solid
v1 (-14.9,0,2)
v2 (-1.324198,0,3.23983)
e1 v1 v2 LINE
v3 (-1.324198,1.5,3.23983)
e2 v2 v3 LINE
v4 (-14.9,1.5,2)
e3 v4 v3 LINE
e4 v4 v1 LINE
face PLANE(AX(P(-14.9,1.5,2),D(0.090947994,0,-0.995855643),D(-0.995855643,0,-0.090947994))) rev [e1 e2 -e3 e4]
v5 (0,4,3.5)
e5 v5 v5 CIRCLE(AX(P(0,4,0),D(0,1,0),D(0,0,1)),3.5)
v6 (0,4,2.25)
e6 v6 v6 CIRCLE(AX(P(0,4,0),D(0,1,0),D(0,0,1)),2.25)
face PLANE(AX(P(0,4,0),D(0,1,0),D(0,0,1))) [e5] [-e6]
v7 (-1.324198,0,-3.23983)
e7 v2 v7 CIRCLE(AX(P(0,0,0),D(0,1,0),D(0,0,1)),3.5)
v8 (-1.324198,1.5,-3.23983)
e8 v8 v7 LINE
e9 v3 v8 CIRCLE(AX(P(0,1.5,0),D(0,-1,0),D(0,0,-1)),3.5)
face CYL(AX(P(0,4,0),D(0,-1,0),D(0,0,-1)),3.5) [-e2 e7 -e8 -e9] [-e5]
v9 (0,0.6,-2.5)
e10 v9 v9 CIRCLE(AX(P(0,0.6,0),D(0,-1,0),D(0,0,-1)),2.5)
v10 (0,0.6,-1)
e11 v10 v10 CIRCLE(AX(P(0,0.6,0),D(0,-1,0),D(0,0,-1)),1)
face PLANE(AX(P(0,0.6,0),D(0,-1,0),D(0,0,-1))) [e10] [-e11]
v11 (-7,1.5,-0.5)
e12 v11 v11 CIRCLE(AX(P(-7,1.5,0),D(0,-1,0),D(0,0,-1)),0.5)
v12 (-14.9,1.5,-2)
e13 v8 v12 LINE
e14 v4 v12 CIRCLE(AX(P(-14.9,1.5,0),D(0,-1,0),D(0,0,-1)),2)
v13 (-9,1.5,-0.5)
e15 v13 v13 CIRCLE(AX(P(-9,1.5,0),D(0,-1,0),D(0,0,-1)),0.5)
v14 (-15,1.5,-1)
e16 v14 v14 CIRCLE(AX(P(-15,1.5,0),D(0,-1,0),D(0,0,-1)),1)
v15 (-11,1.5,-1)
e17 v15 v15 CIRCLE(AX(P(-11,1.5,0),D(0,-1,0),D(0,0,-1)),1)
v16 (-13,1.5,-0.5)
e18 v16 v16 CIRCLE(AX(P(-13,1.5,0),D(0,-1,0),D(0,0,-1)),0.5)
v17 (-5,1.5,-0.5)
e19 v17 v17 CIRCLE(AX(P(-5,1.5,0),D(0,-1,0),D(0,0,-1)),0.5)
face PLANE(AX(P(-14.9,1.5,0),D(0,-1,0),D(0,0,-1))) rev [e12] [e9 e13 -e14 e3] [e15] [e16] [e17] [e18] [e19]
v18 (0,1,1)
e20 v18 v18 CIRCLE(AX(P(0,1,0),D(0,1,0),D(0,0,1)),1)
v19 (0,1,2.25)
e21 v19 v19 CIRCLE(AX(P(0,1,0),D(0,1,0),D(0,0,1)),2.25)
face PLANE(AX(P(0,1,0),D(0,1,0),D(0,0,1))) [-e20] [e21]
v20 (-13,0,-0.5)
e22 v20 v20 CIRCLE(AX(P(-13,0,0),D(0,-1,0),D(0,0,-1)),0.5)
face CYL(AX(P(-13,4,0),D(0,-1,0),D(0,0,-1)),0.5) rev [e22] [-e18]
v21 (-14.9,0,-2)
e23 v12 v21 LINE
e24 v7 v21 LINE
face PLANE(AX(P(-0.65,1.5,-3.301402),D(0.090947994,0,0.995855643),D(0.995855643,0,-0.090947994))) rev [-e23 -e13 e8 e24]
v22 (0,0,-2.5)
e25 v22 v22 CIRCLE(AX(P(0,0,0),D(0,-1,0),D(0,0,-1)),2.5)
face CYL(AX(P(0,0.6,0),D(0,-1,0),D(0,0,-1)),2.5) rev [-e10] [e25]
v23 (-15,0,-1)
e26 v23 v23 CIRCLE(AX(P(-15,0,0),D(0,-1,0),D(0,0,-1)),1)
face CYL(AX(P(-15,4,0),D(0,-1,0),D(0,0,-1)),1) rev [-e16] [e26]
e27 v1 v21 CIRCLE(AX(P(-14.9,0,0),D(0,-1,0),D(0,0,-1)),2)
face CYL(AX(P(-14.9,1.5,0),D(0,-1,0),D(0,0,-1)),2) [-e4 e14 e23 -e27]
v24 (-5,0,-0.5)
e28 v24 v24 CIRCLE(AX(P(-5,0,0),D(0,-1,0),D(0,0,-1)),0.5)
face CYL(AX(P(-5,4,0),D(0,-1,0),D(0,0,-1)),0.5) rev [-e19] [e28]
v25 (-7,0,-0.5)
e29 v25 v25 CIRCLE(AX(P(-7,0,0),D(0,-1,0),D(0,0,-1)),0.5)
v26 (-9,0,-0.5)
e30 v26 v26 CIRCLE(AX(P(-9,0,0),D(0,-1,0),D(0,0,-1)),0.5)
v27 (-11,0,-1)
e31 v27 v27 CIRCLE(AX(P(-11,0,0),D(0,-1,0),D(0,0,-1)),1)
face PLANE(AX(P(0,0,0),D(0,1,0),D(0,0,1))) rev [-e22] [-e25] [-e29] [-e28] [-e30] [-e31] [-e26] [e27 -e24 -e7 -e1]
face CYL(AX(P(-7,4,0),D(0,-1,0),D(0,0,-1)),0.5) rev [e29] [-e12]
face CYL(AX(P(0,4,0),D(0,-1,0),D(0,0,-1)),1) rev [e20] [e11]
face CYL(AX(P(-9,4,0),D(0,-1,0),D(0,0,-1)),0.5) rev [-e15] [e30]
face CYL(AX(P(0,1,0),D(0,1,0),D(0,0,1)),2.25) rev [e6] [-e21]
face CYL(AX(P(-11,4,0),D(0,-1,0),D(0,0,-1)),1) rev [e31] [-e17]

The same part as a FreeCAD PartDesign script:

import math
import FreeCAD as App
import Part
import Sketcher

V = App.Vector
Q = App.Units.Quantity

doc = App.newDocument("Part")
body = doc.addObject("PartDesign::Body", "Body")

# Sketch on XZ plane
sketch1 = body.newObject("Sketcher::SketchObject", "Sketch")
sketch1.AttachmentSupport = (doc.getObject("XZ_Plane"), [""])
sketch1.MapMode = "FlatFace"
sketch1.addGeometry(Part.Circle(V(0, 0, 0), V(0, 0, 1), 3.5), False)
sketch1.addConstraint(Sketcher.Constraint("Coincident", 0, 3, -1, 1))
sketch1.addConstraint(Sketcher.Constraint("Diameter", 0, Q("7 mm")))
pad1 = body.newObject("PartDesign::Pad", "Pad")
pad1.Profile = sketch1
pad1.Length = 4
pad1.Reversed = True

# Sketch on XZ plane
sketch2 = body.newObject("Sketcher::SketchObject", "Sketch001")
sketch2.AttachmentSupport = (doc.getObject("XZ_Plane"), [""])
sketch2.MapMode = "FlatFace"
sketch2.addGeometry(Part.LineSegment(V(-0.7, 3.3, 0), V(-14.9, 2, 0)), False)
sketch2.addGeometry(Part.ArcOfCircle(Part.Circle(V(-14.9, 0, 0), V(0, 0, 1), 2), math.radians(90), math.radians(270)), False)
sketch2.addGeometry(Part.LineSegment(V(-14.9, -2, 0), V(-0.7, -3.3, 0)), False)
sketch2.addGeometry(Part.LineSegment(V(-0.7, -3.3, 0), V(0, -3.5, 0)), False)
sketch2.addGeometry(Part.LineSegment(V(0, -3.5, 0), V(0, 3.5, 0)), False)
sketch2.addGeometry(Part.LineSegment(V(0, 3.5, 0), V(-0.7, 3.3, 0)), False)
sketch2.addConstraint(Sketcher.Constraint("Coincident", 0, 2, 1, 1))
sketch2.addConstraint(Sketcher.Constraint("Coincident", 1, 2, 2, 1))
sketch2.addConstraint(Sketcher.Constraint("Coincident", 2, 2, 3, 1))
sketch2.addConstraint(Sketcher.Constraint("Coincident", 3, 2, 4, 1))
sketch2.addConstraint(Sketcher.Constraint("Coincident", 4, 2, 5, 1))
sketch2.addConstraint(Sketcher.Constraint("Coincident", 5, 2, 0, 1))
sketch2.addConstraint(Sketcher.Constraint("Vertical", 4))
sketch2.addConstraint(Sketcher.Constraint("Symmetric", 3, 2, 4, 2, -1, 1))
sketch2.addConstraint(Sketcher.Constraint("Symmetric", 0, 2, 1, 2, -1))
sketch2.addConstraint(Sketcher.Constraint("Symmetric", 2, 2, 5, 2, -1))
sketch2.addConstraint(Sketcher.Constraint("Vertical", 1, 3, 0, 2))
sketch2.addConstraint(Sketcher.Constraint("Radius", 1, Q("2 mm")))
sketch2.addConstraint(Sketcher.Constraint("DistanceY", 4, 1, 4, 2, Q("7 mm")))
sketch2.addConstraint(Sketcher.Constraint("DistanceX", 1, 3, -1, 1, Q("14.9 mm")))
sketch2.addConstraint(Sketcher.Constraint("DistanceX", 2, 2, -1, 1, Q("0.65 mm")))
sketch2.addConstraint(Sketcher.Constraint("Distance", 0, Q("14.309303 mm")))
pad2 = body.newObject("PartDesign::Pad", "Pad001")
pad2.Profile = sketch2
pad2.Length = 1.5
pad2.Reversed = True

# Sketch on XZ plane
sketch3 = body.newObject("Sketcher::SketchObject", "Sketch002")
sketch3.AttachmentSupport = (doc.getObject("XZ_Plane"), [""])
sketch3.MapMode = "FlatFace"
sketch3.addGeometry(Part.Circle(V(0, 0, 0), V(0, 0, 1), 2.5), False)
sketch3.addConstraint(Sketcher.Constraint("Coincident", 0, 3, -1, 1))
sketch3.addConstraint(Sketcher.Constraint("Diameter", 0, Q("5 mm")))
pocket1 = body.newObject("PartDesign::Pocket", "Pocket")
pocket1.Profile = sketch3
pocket1.Length = 0.6

# Sketch on XZ plane
sketch4 = body.newObject("Sketcher::SketchObject", "Sketch003")
sketch4.AttachmentSupport = (doc.getObject("XZ_Plane"), [""])
sketch4.MapMode = "FlatFace"
sketch4.AttachmentOffset = App.Placement(V(0, 0, -4), App.Rotation())
sketch4.addGeometry(Part.Circle(V(0, 0, 0), V(0, 0, 1), 2.2), False)
sketch4.addConstraint(Sketcher.Constraint("Coincident", 0, 3, -1, 1))
sketch4.addConstraint(Sketcher.Constraint("Diameter", 0, Q("4.5 mm")))
pocket2 = body.newObject("PartDesign::Pocket", "Pocket001")
pocket2.Profile = sketch4
pocket2.Length = 3
pocket2.Reversed = True

# Sketch on XZ plane
sketch5 = body.newObject("Sketcher::SketchObject", "Sketch004")
sketch5.AttachmentSupport = (doc.getObject("XZ_Plane"), [""])
sketch5.MapMode = "FlatFace"
sketch5.AttachmentOffset = App.Placement(V(0, 0, -0.6), App.Rotation())
sketch5.addGeometry(Part.Circle(V(0, 0, 0), V(0, 0, 1), 1), False)
sketch5.addConstraint(Sketcher.Constraint("Coincident", 0, 3, -1, 1))
sketch5.addConstraint(Sketcher.Constraint("Diameter", 0, Q("2 mm")))
pocket3 = body.newObject("PartDesign::Pocket", "Pocket002")
pocket3.Profile = sketch5
pocket3.Type = "ThroughAll"

# Sketch on XZ plane
sketch6 = body.newObject("Sketcher::SketchObject", "Sketch005")
sketch6.AttachmentSupport = (doc.getObject("XZ_Plane"), [""])
sketch6.MapMode = "FlatFace"
sketch6.addGeometry(Part.Circle(V(-15, 0, 0), V(0, 0, 1), 1), False)
sketch6.addGeometry(Part.Circle(V(-13, 0, 0), V(0, 0, 1), 0.5), False)
sketch6.addGeometry(Part.Circle(V(-11, 0, 0), V(0, 0, 1), 1), False)
sketch6.addGeometry(Part.Circle(V(-9, 0, 0), V(0, 0, 1), 0.5), False)
sketch6.addGeometry(Part.Circle(V(-7, 0, 0), V(0, 0, 1), 0.5), False)
sketch6.addGeometry(Part.Circle(V(-5, 0, 0), V(0, 0, 1), 0.5), False)
sketch6.addConstraint(Sketcher.Constraint("Equal", 0, 2))
sketch6.addConstraint(Sketcher.Constraint("Equal", 1, 3))
sketch6.addConstraint(Sketcher.Constraint("Equal", 3, 4))
sketch6.addConstraint(Sketcher.Constraint("Equal", 4, 5))
sketch6.addConstraint(Sketcher.Constraint("PointOnObject", 0, 3, -1))
sketch6.addConstraint(Sketcher.Constraint("PointOnObject", 1, 3, -1))
sketch6.addConstraint(Sketcher.Constraint("PointOnObject", 2, 3, -1))
sketch6.addConstraint(Sketcher.Constraint("PointOnObject", 3, 3, -1))
sketch6.addConstraint(Sketcher.Constraint("PointOnObject", 4, 3, -1))
sketch6.addConstraint(Sketcher.Constraint("PointOnObject", 5, 3, -1))
sketch6.addConstraint(Sketcher.Constraint("Diameter", 0, Q("2 mm")))
sketch6.addConstraint(Sketcher.Constraint("Diameter", 1, Q("1 mm")))
sketch6.addConstraint(Sketcher.Constraint("DistanceX", 0, 3, -1, 1, Q("15 mm")))
sketch6.addConstraint(Sketcher.Constraint("DistanceX", 1, 3, -1, 1, Q("13 mm")))
sketch6.addConstraint(Sketcher.Constraint("DistanceX", 2, 3, -1, 1, Q("11 mm")))
sketch6.addConstraint(Sketcher.Constraint("DistanceX", 3, 3, -1, 1, Q("9 mm")))
sketch6.addConstraint(Sketcher.Constraint("DistanceX", 4, 3, -1, 1, Q("7 mm")))
sketch6.addConstraint(Sketcher.Constraint("DistanceX", 5, 3, -1, 1, Q("5 mm")))
pocket4 = body.newObject("PartDesign::Pocket", "Pocket003")
pocket4.Profile = sketch6
pocket4.Type = "ThroughAll"

doc.recompute()
